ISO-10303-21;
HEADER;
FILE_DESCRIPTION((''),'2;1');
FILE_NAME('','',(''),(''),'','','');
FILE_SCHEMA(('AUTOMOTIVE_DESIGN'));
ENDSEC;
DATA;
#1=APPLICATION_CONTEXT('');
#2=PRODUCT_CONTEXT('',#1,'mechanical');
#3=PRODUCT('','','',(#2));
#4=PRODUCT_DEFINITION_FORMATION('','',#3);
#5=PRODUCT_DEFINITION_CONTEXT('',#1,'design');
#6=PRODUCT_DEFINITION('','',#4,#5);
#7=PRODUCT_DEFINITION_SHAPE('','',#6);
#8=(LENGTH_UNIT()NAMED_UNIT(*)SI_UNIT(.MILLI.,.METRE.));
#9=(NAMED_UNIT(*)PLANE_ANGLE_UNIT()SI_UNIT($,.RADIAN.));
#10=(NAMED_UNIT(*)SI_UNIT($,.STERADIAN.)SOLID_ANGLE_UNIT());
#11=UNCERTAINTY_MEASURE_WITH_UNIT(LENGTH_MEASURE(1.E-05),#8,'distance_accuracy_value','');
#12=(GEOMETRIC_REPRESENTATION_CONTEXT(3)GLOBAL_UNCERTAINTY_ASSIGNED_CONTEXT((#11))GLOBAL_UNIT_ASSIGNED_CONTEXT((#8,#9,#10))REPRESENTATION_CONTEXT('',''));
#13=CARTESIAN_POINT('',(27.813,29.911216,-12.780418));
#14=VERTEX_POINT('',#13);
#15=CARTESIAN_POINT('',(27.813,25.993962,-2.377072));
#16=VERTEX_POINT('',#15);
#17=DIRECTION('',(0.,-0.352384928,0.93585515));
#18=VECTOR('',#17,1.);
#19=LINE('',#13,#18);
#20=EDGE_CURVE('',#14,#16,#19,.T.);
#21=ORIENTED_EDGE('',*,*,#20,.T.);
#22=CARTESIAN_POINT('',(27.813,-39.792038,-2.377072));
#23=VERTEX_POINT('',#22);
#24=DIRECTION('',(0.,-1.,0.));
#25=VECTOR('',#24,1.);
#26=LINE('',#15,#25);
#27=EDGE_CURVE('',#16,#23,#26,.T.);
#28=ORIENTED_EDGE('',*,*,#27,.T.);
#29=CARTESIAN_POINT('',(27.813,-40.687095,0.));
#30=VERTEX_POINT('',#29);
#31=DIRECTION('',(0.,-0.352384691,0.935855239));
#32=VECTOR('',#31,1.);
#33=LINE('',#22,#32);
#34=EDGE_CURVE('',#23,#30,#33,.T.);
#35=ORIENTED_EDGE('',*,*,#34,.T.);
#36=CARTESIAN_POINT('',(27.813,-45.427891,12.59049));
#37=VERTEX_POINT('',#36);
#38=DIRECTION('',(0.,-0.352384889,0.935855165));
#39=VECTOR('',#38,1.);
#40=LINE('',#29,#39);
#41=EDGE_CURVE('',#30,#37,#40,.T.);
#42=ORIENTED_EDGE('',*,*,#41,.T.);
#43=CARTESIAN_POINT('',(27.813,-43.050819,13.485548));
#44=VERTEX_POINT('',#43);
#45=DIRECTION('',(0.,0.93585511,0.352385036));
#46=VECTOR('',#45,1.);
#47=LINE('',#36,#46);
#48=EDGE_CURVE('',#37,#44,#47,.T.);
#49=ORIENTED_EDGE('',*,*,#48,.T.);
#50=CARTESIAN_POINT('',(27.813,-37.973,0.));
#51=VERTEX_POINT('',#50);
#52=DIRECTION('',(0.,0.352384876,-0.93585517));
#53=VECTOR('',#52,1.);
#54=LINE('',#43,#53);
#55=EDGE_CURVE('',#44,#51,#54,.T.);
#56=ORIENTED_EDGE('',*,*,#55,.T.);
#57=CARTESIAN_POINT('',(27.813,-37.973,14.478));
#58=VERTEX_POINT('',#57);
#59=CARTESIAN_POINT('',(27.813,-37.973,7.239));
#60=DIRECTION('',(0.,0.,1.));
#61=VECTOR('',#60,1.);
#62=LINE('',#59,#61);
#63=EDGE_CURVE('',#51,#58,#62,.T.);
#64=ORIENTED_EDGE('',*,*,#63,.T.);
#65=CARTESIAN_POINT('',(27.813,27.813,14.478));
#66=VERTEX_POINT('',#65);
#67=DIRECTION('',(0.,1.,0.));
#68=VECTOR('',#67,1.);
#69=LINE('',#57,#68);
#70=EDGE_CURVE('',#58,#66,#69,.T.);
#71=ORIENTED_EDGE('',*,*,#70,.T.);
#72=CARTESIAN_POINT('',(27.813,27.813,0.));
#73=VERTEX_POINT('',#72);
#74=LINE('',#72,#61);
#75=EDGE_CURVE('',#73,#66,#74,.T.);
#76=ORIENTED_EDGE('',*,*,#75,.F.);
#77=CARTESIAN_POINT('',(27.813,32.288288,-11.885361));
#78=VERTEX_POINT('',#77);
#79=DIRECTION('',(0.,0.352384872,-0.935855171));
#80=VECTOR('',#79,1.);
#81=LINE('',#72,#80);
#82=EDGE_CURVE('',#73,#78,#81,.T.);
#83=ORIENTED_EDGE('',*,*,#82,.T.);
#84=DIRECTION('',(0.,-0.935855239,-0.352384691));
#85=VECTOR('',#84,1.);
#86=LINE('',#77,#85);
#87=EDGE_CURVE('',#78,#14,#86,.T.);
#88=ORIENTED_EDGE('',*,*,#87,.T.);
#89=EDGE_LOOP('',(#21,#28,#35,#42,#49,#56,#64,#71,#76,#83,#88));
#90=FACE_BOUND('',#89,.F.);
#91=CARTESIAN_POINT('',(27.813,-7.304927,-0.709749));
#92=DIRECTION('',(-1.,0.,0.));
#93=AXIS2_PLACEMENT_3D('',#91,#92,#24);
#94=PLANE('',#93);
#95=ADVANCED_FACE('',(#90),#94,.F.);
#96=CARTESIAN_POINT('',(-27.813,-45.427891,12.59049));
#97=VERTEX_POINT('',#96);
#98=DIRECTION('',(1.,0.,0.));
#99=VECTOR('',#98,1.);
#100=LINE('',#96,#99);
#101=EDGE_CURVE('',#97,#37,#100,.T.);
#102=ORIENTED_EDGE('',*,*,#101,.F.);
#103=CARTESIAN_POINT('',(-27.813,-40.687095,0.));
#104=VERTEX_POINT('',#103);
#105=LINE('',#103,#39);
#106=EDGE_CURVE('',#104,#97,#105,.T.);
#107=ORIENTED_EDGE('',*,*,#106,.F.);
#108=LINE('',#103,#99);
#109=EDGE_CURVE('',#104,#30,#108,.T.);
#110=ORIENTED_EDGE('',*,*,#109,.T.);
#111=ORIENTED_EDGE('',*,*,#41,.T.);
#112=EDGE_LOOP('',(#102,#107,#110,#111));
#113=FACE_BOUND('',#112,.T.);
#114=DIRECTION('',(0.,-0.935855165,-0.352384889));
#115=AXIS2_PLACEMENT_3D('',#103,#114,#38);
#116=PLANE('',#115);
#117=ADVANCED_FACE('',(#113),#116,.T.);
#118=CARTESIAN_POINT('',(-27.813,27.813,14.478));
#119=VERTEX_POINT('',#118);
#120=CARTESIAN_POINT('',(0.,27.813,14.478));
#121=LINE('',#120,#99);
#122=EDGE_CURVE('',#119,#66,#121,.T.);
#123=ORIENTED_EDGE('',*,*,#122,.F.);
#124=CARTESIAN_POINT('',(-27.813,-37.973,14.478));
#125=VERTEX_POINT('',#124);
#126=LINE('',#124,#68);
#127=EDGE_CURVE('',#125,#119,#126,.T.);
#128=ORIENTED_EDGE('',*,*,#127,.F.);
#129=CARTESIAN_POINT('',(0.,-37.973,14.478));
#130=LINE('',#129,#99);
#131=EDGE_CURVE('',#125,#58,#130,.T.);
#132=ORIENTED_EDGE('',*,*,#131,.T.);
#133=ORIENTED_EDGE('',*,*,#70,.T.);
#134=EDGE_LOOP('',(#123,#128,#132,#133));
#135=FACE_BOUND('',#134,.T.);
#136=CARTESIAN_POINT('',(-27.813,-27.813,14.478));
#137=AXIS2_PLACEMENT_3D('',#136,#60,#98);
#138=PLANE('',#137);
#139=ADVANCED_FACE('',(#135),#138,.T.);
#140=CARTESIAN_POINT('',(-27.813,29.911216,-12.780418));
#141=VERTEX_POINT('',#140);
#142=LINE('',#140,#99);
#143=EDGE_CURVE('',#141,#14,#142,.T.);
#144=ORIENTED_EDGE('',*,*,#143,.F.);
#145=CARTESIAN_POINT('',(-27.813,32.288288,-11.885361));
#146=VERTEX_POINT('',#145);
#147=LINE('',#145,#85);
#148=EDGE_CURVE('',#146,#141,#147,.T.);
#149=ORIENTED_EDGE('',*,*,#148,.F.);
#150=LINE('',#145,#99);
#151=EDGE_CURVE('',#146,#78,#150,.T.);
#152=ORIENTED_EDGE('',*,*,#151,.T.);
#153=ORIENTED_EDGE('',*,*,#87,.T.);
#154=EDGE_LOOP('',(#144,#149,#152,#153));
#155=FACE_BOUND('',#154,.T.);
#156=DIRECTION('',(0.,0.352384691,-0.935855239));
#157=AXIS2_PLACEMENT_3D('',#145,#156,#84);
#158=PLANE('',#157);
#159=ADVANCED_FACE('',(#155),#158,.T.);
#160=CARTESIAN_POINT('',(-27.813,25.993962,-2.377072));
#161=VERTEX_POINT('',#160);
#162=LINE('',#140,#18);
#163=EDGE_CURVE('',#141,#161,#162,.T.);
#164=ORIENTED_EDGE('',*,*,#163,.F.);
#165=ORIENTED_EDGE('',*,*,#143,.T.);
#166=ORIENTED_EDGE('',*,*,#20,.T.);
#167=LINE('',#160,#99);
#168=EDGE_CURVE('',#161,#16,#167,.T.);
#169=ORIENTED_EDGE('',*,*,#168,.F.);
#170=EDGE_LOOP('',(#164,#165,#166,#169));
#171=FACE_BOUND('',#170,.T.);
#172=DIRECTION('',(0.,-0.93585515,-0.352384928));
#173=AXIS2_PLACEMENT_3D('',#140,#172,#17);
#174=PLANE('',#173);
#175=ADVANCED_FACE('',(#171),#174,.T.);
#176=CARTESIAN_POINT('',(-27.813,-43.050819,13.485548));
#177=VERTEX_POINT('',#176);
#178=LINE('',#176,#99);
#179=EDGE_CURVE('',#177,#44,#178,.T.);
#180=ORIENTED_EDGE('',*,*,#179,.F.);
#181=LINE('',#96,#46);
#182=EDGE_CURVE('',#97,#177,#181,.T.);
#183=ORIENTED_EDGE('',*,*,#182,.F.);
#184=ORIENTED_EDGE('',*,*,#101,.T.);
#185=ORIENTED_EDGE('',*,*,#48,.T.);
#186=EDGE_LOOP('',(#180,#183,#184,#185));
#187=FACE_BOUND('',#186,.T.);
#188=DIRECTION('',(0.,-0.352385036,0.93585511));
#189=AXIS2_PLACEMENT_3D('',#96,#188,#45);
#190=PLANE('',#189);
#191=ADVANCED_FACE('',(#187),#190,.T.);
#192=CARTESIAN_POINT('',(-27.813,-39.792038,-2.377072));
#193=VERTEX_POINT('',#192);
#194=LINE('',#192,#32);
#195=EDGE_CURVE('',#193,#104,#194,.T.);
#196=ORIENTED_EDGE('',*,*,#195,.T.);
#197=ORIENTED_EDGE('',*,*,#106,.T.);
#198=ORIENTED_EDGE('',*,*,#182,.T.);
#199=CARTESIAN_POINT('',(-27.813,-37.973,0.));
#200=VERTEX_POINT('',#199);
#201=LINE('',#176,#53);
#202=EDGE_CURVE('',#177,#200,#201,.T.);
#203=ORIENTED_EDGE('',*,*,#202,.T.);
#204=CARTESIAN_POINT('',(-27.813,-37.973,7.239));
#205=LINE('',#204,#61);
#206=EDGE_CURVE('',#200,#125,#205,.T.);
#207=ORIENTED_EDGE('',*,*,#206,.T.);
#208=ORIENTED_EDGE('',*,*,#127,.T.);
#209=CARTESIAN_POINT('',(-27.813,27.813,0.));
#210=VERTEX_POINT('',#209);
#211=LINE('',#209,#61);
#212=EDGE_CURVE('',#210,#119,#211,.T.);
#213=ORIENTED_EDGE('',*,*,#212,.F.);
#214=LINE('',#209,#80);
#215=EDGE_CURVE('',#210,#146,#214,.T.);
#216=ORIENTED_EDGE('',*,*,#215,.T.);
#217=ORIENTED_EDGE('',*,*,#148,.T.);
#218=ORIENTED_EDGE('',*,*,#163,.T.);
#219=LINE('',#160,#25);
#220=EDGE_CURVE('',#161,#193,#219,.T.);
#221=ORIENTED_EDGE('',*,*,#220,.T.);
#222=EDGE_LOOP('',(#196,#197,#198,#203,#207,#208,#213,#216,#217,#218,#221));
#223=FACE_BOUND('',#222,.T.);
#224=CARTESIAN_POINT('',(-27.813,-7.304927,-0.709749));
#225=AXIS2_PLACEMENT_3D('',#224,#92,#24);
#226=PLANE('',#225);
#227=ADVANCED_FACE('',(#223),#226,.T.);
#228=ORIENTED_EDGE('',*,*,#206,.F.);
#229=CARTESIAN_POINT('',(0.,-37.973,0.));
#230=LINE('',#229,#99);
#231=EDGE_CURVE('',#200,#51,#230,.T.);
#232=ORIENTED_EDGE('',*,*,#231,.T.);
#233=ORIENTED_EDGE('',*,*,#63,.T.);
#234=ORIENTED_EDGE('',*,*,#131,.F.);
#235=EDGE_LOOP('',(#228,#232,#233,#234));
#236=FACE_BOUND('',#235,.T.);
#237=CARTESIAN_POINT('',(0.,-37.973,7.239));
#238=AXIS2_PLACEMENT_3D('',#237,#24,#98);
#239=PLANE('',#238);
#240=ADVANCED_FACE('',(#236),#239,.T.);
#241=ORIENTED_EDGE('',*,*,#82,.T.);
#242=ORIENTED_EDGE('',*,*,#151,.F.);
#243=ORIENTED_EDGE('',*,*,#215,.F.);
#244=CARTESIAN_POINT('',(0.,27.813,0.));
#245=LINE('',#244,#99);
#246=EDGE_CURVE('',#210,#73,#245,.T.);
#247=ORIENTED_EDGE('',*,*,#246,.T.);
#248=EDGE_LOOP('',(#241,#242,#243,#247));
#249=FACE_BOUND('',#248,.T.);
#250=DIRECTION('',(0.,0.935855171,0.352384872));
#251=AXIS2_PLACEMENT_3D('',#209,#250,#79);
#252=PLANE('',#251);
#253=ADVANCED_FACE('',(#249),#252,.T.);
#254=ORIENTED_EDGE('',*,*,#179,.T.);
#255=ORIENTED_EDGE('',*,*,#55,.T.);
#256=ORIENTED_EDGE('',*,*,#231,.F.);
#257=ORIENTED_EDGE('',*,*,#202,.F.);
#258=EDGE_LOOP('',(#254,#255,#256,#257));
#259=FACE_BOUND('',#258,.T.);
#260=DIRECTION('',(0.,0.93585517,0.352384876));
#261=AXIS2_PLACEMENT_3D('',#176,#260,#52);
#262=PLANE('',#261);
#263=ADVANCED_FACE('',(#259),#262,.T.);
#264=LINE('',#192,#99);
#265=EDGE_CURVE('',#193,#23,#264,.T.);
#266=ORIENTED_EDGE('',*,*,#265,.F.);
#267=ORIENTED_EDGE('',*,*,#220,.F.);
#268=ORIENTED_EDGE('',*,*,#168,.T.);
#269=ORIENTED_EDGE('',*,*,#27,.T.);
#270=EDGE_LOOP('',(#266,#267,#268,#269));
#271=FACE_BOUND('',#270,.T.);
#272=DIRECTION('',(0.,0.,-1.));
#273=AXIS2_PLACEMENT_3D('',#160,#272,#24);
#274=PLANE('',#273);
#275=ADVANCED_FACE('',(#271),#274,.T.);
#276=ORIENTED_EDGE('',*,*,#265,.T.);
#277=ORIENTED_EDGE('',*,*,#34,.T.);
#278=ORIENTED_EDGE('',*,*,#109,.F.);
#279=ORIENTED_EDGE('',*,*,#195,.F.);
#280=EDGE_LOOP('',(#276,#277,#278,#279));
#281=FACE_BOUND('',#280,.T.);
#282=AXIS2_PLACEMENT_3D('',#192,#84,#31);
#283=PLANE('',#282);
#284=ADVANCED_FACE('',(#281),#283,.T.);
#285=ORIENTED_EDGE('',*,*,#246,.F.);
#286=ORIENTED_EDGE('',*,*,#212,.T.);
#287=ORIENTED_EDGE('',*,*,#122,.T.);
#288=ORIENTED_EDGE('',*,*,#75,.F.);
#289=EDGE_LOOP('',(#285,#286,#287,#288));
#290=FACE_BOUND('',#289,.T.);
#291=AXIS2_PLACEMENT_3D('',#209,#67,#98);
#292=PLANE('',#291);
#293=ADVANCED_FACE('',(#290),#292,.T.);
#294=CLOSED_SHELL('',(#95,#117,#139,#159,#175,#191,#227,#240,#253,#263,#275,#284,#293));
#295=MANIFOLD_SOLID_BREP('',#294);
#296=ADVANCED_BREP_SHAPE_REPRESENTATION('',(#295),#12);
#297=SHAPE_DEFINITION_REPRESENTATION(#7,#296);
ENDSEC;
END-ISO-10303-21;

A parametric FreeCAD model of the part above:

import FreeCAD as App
import Part
import Sketcher
from FreeCAD import Vector
Q = App.Units.Quantity


def add_polygon(sketch, points):
    """Adds a closed chain of lines whose ends are joined by coincident constraints."""
    first, n = sketch.GeometryCount, len(points)
    for a, b in zip(points, points[1:] + points[:1]):
        sketch.addGeometry(Part.LineSegment(App.Vector(*a, 0), App.Vector(*b, 0)), False)
    for i in range(n):
        sketch.addConstraint(Sketcher.Constraint("Coincident", first + i, 2, first + (i + 1) % n, 1))

doc = App.newDocument("Part")
params = doc.addObject("Spreadsheet::Sheet", "Params")
for row, (alias, value) in enumerate([
    ("sketch1_width", "2.19 in"),
    ("pad1_length", "0.57 in"),
    ("sketch2_width", "2.19 in"),
    ("sketch2_height", "0.57 in"),
    ("pad2_length", "0.4 in"),
    ("sketch3_length", "0.5 in"),
    ("sketch3_length2", "0.1 in"),
    ("sketch3_width", "2.59 in"),
    ("pad3_length", "2.19 in"),
], start=1):
    params.set(f"A{row}", alias)
    params.set(f"B{row}", "=" + value)
    params.setAlias(f"B{row}", alias)

body = doc.addObject("PartDesign::Body", "Body")

sketch1 = doc.addObject("Sketcher::SketchObject", "Sketch")
body.addObject(sketch1)
sketch1.AttachmentSupport = (doc.XY_Plane, [""])
sketch1.MapMode = "FlatFace"
add_polygon(sketch1, [(-28, 28), (-28, -28), (28, -28), (28, 28)])
sketch1.addConstraint([
    Sketcher.Constraint("Vertical", 0),
    Sketcher.Constraint("Horizontal", 1),
    Sketcher.Constraint("Vertical", 2),
    Sketcher.Constraint("Horizontal", 3),
    Sketcher.Constraint("Symmetric", 0, 2, 2, 2, -1, 1),
    Sketcher.Constraint("Equal", 3, 0),
    Sketcher.Constraint("DistanceX", 1, 1, 1, 2, Q("2.19 in")),
])
sketch1.setExpression("Constraints[10]", "Params.sketch1_width")
pad1 = doc.addObject("PartDesign::Pad", "Pad")
body.addObject(pad1)
pad1.Profile = sketch1
pad1.setExpression("Length", "Params.pad1_length")

sketch2 = doc.addObject("Sketcher::SketchObject", "Sketch001")
body.addObject(sketch2)
sketch2.AttachmentSupport = (doc.XZ_Plane, [""])
sketch2.MapMode = "FlatFace"
sketch2.AttachmentOffset = App.Placement(Vector(0, 0, 1.095 * 25.4), App.Rotation())
add_polygon(sketch2, [(-28, 14), (-28, 0), (28, 0), (28, 14)])
sketch2.addConstraint([
    Sketcher.Constraint("Vertical", 0),
    Sketcher.Constraint("Horizontal", 1),
    Sketcher.Constraint("Vertical", 2),
    Sketcher.Constraint("Horizontal", 3),
    Sketcher.Constraint("Symmetric", 0, 2, 1, 2, -1, 1),
    Sketcher.Constraint("DistanceX", 1, 1, 1, 2, Q("2.19 in")),
    Sketcher.Constraint("DistanceY", 0, 2, 0, 1, Q("0.57 in")),
])
sketch2.setExpression("Constraints[9]", "Params.sketch2_width")
sketch2.setExpression("Constraints[10]", "Params.sketch2_height")
pad2 = doc.addObject("PartDesign::Pad", "Pad001")
body.addObject(pad2)
pad2.Profile = sketch2
pad2.setExpression("Length", "Params.pad2_length")

sketch3 = doc.addObject("Sketcher::SketchObject", "Sketch002")
body.addObject(sketch3)
sketch3.AttachmentSupport = (doc.YZ_Plane, [""])
sketch3.MapMode = "FlatFace"
sketch3.AttachmentOffset = App.Placement(Vector(0, 0, -1.095 * 25.4), App.Rotation())
add_polygon(sketch3, [(-38, 0), (27.8, 0), (32.3, -11.9), (29.9, -12.8), (26, -2.4), (-39.8, -2.4), (-40.7, 0), (-45.4, 12.6), (-43.1, 13.5)])
sketch3.addConstraint([
    Sketcher.Constraint("Horizontal", 0),
    Sketcher.Constraint("Horizontal", 4),
    Sketcher.Constraint("PointOnObject", 0, 2, -1),
    Sketcher.Constraint("PointOnObject", 5, 2, -1),
    Sketcher.Constraint("Perpendicular", 1, 2),
    Sketcher.Constraint("Perpendicular", 2, 3),
    Sketcher.Constraint("Parallel", 3, 5),
    Sketcher.Constraint("Parallel", 5, 6),
    Sketcher.Constraint("Perpendicular", 6, 7),
    Sketcher.Constraint("Perpendicular", 7, 8),
    Sketcher.Constraint("Equal", 0, 4),
    Sketcher.Constraint("Equal", 2, 5),
    Sketcher.Constraint("Distance", 1, Q("0.5 in")),
    Sketcher.Constraint("Distance", 2, Q("0.1 in")),
    Sketcher.Constraint("DistanceX", 0, 1, 0, 2, Q("2.59 in")),
    Sketcher.Constraint("DistanceX", -1, 1, 0, 2, Q("1.095 in")),
    Sketcher.Constraint("Distance", 6, 13.45346),
    Sketcher.Constraint("DistanceY", 1, 2, -1, 1, 11.885361),
])
sketch3.setExpression("Constraints[21]", "Params.sketch3_length")
sketch3.setExpression("Constraints[22]", "Params.sketch3_length2")
sketch3.setExpression("Constraints[23]", "Params.sketch3_width")
pad3 = doc.addObject("PartDesign::Pad", "Pad002")
body.addObject(pad3)
pad3.Profile = sketch3
pad3.setExpression("Length", "Params.pad3_length")

doc.recompute()
